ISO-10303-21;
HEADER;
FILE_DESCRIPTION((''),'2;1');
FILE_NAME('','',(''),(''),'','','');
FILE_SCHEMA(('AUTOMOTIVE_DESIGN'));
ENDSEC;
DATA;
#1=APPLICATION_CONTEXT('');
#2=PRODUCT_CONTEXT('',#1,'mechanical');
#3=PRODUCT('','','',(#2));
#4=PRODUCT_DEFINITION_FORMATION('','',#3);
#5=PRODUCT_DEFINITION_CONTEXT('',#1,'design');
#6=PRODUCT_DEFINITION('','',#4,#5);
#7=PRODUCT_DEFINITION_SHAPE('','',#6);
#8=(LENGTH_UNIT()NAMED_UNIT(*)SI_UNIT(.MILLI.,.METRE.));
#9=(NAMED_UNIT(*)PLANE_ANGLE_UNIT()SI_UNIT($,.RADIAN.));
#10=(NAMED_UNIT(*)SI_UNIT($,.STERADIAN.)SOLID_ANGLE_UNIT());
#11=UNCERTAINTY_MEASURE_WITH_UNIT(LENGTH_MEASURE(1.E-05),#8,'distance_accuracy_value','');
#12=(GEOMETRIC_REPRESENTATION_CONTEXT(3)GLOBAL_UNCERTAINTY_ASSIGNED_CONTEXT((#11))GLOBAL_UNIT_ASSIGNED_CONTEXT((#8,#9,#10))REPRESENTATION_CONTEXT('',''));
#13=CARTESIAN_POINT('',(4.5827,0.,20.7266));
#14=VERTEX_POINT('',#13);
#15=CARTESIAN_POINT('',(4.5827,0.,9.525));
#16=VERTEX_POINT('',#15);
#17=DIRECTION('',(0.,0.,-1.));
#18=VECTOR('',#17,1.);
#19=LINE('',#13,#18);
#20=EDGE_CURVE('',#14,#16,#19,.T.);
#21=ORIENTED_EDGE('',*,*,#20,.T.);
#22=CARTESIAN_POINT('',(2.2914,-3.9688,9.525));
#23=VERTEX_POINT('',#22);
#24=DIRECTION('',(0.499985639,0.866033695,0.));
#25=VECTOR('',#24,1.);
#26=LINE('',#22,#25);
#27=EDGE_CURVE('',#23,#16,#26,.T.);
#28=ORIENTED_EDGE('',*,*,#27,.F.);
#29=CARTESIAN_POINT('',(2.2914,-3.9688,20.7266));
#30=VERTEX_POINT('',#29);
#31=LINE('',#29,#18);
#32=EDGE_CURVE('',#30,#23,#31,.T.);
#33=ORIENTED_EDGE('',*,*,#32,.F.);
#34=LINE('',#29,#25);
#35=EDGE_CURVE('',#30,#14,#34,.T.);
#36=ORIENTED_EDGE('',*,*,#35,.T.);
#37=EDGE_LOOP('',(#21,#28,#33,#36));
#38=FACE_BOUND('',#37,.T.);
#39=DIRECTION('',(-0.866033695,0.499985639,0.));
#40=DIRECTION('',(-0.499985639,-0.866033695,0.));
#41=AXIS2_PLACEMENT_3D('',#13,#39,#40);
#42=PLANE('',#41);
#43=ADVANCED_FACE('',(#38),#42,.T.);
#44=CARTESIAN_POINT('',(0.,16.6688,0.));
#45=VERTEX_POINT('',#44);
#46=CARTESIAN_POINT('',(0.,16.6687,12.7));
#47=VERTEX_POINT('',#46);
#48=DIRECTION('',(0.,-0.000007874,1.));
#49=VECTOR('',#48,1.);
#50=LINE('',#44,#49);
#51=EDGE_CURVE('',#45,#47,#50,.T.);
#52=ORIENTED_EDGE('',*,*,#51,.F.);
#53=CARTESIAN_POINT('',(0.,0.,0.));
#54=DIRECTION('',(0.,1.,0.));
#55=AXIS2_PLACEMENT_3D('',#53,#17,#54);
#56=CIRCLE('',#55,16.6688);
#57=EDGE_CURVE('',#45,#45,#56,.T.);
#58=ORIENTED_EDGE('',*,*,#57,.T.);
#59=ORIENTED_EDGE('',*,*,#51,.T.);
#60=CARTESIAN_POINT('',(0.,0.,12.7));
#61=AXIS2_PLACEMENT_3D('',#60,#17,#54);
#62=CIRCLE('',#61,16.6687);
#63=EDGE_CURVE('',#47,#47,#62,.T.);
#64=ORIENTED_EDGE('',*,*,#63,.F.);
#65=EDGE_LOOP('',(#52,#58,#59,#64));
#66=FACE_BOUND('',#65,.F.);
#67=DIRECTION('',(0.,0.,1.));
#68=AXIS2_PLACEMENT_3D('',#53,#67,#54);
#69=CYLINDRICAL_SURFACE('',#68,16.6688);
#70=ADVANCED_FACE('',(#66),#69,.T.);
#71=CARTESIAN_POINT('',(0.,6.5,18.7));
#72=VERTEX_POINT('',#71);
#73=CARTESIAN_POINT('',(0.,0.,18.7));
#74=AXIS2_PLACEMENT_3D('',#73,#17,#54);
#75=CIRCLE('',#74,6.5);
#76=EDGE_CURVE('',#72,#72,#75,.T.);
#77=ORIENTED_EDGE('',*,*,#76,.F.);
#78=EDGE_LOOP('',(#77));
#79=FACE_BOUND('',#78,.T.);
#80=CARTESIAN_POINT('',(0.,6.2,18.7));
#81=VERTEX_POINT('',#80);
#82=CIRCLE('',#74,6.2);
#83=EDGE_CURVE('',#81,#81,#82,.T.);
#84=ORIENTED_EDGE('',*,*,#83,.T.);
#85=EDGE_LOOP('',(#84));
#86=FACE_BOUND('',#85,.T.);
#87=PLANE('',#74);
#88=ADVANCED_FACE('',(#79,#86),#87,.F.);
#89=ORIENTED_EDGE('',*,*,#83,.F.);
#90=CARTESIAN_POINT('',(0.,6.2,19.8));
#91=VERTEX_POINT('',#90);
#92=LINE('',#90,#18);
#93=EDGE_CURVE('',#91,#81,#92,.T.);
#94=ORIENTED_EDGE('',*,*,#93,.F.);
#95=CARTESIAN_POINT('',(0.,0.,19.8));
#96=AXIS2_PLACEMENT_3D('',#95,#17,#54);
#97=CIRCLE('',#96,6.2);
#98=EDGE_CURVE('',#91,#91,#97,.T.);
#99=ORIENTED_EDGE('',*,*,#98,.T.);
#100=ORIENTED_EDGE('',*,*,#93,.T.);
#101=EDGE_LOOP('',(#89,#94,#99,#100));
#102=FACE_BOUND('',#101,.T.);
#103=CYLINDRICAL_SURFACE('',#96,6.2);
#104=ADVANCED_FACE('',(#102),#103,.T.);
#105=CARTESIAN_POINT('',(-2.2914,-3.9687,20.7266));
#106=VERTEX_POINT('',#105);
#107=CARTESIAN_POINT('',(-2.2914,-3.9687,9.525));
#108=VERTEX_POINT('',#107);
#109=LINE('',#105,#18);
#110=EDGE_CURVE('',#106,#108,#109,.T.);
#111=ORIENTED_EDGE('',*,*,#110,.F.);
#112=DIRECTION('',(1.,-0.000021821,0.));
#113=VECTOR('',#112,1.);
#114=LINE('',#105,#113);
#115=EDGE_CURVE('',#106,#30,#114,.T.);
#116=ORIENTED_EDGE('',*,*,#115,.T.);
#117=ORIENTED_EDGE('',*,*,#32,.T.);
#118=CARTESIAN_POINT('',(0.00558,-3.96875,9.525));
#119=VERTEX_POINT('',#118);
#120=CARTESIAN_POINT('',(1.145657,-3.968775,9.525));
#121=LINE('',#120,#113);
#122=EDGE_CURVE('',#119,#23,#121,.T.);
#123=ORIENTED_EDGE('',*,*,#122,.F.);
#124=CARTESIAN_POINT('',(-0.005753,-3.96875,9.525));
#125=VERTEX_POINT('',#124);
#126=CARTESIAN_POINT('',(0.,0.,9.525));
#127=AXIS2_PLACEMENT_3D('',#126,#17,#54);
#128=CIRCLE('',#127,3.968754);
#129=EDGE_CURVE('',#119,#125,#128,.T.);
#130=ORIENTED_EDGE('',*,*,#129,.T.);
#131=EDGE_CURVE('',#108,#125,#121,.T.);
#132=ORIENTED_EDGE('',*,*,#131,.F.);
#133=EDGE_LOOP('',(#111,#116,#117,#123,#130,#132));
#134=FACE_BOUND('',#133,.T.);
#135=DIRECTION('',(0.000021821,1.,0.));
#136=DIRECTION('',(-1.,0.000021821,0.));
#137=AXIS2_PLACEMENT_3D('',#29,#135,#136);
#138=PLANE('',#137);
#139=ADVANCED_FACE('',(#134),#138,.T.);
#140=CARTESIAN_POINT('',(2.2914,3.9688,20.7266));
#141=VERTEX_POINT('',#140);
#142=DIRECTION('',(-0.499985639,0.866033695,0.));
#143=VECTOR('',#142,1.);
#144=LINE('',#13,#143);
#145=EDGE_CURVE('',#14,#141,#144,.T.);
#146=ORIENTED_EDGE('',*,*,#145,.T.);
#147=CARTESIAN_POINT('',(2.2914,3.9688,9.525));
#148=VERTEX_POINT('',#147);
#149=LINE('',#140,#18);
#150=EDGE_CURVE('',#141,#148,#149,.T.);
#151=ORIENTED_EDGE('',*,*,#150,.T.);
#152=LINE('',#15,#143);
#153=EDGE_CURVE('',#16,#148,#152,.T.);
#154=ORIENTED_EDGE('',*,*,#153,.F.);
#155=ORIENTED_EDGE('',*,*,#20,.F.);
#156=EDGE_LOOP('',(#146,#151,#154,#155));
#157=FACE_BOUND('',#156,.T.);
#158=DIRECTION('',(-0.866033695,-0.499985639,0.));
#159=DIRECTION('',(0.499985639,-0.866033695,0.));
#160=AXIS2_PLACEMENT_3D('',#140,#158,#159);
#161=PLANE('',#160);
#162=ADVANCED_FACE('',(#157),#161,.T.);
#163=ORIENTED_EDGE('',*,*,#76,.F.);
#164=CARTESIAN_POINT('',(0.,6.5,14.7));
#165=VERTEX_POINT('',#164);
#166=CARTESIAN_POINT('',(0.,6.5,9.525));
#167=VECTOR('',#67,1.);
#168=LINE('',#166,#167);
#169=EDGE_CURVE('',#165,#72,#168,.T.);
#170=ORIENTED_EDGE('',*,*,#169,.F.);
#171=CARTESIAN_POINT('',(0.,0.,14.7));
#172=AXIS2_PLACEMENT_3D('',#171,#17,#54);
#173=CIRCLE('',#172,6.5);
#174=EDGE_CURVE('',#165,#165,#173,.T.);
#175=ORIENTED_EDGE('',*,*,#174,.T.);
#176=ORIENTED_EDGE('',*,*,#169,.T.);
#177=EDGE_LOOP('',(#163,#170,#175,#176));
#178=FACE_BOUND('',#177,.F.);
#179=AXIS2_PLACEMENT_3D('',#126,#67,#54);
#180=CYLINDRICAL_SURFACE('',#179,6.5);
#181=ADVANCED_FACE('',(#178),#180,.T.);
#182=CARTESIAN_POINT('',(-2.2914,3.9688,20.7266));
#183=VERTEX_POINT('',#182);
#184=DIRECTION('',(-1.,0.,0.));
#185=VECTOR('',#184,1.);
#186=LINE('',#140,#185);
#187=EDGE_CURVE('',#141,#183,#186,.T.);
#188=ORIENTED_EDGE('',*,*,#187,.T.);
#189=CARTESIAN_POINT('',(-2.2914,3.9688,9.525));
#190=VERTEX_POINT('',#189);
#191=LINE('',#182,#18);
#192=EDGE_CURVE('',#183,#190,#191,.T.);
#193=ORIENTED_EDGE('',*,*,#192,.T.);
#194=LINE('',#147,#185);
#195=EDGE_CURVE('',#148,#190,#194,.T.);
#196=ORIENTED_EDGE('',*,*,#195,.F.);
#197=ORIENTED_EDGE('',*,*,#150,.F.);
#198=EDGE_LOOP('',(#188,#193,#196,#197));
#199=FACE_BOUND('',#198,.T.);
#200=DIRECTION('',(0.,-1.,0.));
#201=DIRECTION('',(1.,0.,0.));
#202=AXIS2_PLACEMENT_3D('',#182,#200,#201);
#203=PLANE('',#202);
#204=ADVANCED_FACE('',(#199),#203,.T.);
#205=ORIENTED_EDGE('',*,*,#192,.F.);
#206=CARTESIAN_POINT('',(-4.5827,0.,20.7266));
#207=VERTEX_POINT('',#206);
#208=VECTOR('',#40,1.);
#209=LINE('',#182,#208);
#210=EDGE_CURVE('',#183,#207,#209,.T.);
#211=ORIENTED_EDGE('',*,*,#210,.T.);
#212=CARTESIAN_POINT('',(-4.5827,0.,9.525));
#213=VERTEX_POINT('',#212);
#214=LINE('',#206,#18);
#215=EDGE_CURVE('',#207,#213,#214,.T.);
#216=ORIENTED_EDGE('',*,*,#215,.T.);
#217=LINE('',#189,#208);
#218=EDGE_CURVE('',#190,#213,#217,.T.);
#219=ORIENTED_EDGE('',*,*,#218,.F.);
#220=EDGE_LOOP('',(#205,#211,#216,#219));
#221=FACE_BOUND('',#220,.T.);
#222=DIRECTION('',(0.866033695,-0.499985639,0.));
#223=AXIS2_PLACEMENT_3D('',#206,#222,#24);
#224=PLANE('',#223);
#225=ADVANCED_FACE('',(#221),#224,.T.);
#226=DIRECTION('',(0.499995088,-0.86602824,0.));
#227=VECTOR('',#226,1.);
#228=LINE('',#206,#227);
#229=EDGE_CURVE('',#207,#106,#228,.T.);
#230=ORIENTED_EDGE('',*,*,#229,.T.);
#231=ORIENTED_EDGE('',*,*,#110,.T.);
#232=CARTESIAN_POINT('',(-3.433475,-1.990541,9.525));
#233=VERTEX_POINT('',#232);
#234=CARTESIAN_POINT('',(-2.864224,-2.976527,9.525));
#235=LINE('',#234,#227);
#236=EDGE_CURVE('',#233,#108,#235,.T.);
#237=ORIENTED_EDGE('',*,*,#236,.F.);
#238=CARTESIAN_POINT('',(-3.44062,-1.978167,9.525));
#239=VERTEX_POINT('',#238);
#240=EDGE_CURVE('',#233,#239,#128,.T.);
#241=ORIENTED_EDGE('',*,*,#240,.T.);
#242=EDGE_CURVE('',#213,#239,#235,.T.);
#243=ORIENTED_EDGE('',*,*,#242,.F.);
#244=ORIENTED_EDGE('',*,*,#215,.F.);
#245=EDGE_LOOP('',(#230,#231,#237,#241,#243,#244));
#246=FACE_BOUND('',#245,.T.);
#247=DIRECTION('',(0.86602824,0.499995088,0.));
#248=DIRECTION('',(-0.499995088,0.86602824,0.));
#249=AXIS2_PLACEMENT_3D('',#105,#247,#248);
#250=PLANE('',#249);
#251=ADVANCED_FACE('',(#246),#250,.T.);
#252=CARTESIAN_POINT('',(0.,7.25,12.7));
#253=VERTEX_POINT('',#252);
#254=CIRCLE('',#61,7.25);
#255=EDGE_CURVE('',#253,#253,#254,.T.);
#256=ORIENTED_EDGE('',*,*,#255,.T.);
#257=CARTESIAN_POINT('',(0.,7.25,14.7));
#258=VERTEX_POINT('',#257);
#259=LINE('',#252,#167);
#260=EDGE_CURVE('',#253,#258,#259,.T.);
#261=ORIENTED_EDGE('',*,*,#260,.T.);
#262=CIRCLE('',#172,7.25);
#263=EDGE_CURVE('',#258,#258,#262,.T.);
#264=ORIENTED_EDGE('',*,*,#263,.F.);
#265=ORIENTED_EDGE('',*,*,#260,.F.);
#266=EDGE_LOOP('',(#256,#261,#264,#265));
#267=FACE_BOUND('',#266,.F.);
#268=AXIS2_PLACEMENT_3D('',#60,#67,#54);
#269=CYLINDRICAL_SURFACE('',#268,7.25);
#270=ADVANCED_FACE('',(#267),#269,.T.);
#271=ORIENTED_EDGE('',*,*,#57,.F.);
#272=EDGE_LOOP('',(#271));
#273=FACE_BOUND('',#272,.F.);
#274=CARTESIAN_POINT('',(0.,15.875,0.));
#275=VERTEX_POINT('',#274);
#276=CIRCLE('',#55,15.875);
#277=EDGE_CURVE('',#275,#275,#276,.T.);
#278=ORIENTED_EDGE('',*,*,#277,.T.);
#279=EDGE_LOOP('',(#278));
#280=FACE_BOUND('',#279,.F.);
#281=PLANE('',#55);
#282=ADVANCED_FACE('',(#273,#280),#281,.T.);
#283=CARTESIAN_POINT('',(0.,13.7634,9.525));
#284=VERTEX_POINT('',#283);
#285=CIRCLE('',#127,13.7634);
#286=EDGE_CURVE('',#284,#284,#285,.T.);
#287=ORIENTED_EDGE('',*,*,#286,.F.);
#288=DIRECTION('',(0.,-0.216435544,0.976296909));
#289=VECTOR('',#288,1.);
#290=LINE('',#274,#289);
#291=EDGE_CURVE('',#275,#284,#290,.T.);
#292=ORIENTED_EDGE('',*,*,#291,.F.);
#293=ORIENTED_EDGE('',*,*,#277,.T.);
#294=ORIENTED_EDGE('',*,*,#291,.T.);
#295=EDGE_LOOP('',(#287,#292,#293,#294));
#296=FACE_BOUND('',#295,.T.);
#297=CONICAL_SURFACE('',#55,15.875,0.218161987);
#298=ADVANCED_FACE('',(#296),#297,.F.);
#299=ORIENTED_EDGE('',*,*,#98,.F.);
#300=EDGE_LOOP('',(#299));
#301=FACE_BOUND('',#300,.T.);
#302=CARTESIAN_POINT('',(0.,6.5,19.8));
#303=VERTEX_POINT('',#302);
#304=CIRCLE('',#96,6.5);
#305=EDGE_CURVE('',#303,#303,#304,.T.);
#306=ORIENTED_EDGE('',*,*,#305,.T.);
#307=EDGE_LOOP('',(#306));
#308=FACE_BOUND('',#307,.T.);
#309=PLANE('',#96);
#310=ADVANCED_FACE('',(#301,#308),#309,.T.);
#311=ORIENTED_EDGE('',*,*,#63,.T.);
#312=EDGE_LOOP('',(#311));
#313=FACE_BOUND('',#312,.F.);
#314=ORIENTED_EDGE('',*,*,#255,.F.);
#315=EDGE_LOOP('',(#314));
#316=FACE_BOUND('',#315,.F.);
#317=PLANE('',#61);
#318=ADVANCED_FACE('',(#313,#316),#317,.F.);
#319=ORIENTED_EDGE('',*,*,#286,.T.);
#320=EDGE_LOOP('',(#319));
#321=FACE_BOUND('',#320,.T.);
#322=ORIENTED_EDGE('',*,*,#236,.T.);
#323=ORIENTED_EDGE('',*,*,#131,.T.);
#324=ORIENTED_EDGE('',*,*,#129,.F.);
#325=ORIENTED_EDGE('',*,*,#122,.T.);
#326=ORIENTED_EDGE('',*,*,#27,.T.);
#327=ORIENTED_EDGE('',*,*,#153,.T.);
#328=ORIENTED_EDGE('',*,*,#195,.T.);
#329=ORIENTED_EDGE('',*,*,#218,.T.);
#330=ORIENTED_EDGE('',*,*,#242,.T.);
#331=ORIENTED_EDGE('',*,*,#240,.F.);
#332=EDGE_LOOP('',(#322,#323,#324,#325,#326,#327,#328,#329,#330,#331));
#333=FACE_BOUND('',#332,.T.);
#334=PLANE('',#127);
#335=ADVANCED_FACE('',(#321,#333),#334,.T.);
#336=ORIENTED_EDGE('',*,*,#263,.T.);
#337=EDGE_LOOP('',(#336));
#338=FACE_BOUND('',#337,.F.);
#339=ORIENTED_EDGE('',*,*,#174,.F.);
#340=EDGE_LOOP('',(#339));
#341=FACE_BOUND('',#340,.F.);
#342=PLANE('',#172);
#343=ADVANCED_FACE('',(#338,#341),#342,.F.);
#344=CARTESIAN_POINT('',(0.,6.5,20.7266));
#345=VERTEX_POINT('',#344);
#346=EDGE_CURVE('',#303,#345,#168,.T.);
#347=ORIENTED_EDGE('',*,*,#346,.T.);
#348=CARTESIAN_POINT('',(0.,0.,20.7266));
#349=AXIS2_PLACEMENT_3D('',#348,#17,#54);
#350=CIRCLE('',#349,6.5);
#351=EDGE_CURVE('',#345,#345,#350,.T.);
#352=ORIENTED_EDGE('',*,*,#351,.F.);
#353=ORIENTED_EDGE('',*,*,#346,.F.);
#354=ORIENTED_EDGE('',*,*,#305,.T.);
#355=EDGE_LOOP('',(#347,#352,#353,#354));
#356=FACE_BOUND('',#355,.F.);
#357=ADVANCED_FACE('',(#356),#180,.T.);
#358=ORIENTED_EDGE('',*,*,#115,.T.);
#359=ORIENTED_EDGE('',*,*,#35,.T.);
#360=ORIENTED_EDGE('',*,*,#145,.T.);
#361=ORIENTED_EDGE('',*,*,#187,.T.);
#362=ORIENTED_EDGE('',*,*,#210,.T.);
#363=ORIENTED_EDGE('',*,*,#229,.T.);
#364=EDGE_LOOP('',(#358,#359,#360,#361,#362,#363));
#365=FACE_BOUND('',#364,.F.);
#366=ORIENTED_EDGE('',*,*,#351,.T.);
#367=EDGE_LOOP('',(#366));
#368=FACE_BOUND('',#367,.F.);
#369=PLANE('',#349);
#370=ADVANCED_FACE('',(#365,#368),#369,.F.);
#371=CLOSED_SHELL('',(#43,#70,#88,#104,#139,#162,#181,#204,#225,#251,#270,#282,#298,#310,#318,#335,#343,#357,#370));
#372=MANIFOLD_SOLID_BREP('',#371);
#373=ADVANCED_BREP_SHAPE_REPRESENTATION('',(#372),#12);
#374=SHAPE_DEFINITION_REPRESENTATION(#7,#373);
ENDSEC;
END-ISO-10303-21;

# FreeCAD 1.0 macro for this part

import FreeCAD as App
import Part
import Sketcher

V = App.Vector
Q = App.Units.Quantity


def add_polygon(sketch, points):
    """Adds a closed chain of lines whose ends are joined by coincident constraints."""
    first, n = sketch.GeometryCount, len(points)
    for a, b in zip(points, points[1:] + points[:1]):
        sketch.addGeometry(Part.LineSegment(App.Vector(*a, 0), App.Vector(*b, 0)), False)
    for i in range(n):
        sketch.addConstraint(Sketcher.Constraint("Coincident", first + i, 2, first + (i + 1) % n, 1))

doc = App.newDocument("Part")
params = doc.addObject("Spreadsheet::Sheet", "Params")
for row, (alias, value) in enumerate([
    ("sketch1_height", "0.5 in"),
    ("sketch1_width", "0.031252 in"),
    ("sketch1_height2", "0.441 in"),
    ("revolution_angle", "360 deg"),
], start=1):
    params.set(f"A{row}", alias)
    params.set(f"B{row}", "=" + value)
    params.setAlias(f"B{row}", alias)

body = doc.addObject("PartDesign::Body", "Body")

sketch1 = body.newObject("Sketcher::SketchObject", "Sketch")
sketch1.AttachmentSupport = (doc.getObject("YZ_Plane"), [""])
sketch1.MapMode = "FlatFace"
add_polygon(sketch1, [(13.76, 9.53), (15.88, 0), (16.67, 0), (16.67, 12.7), (7.25, 12.7), (7.25, 14.7), (6.5, 14.7), (6.5, 18.7), (6.2, 18.7), (6.2, 19.8), (6.5, 19.8), (6.5, 20.73), (3.97, 20.73), (3.97, 9.53)])
sketch1.addConstraint([
    Sketcher.Constraint("Horizontal", 1),
    Sketcher.Constraint("Vertical", 2),
    Sketcher.Constraint("Horizontal", 3),
    Sketcher.Constraint("Vertical", 4),
    Sketcher.Constraint("Horizontal", 5),
    Sketcher.Constraint("Vertical", 6),
    Sketcher.Constraint("Horizontal", 7),
    Sketcher.Constraint("Vertical", 8),
    Sketcher.Constraint("Horizontal", 9),
    Sketcher.Constraint("Vertical", 10),
    Sketcher.Constraint("Horizontal", 11),
    Sketcher.Constraint("Vertical", 12),
    Sketcher.Constraint("Horizontal", 13),
    Sketcher.Constraint("PointOnObject", 0, 2, -1),
    Sketcher.Constraint("Vertical", 6, 2, 9, 2),
    Sketcher.Constraint("DistanceY", 2, 1, 2, 2, Q("0.5 in")),
    Sketcher.Constraint("DistanceX", 1, 1, 1, 2, Q("0.031252 in")),
    Sketcher.Constraint("DistanceX", 7, 2, 7, 1, Q("0.0118 in")),
    Sketcher.Constraint("DistanceY", 8, 1, 8, 2, Q("0.0433 in")),
    Sketcher.Constraint("DistanceX", -1, 1, 0, 2, Q("0.625 in")),
    Sketcher.Constraint("DistanceX", -1, 1, 11, 2, Q("0.156248 in")),
    Sketcher.Constraint("DistanceY", -1, 1, 12, 2, Q("0.375 in")),
    Sketcher.Constraint("DistanceX", 5, 2, 5, 1, Q("0.75 mm")),
    Sketcher.Constraint("DistanceY", 4, 1, 4, 2, Q("2 mm")),
    Sketcher.Constraint("DistanceX", -1, 1, 5, 2, Q("0.2559 in")),
    Sketcher.Constraint("Angle", 0, Q("-77.5002 deg")),
    Sketcher.Constraint("DistanceY", 12, 2, 12, 1, Q("0.441 in")),
    Sketcher.Constraint("DistanceY", 3, 2, 6, 2, Q("6 mm")),
])
sketch1.setExpression("Constraints[29]", "Params.sketch1_height")
sketch1.setExpression("Constraints[30]", "Params.sketch1_width")
sketch1.setExpression("Constraints[40]", "Params.sketch1_height2")
revolution = body.newObject("PartDesign::Revolution", "Revolution")
revolution.Profile = sketch1
revolution.ReferenceAxis = (sketch1, ["V_Axis"])
revolution.setExpression("Angle", "Params.revolution_angle")

sketch2 = body.newObject("Sketcher::SketchObject", "Sketch001")
sketch2.AttachmentSupport = (doc.getObject("XY_Plane"), [""])
sketch2.MapMode = "FlatFace"
sketch2.AttachmentOffset = App.Placement(V(0, 0, 0.8160079 * 25.4), App.Rotation())
add_polygon(sketch2, [(4.6, 0), (2.3, 4), (-2.3, 4), (-4.6, 0), (-2.3, -4), (2.3, -4)])
sketch2.addConstraint([
    Sketcher.Constraint("Horizontal", 1),
    Sketcher.Constraint("Horizontal", 4),
    Sketcher.Constraint("Symmetric", 0, 2, 3, 2, -1, 1),
    Sketcher.Constraint("Symmetric", 2, 2, 5, 2, -1, 1),
    Sketcher.Constraint("PointOnObject", 2, 2, -1),
    Sketcher.Constraint("Parallel", 2, 5),
    Sketcher.Constraint("Vertical", 1, 2, 3, 2),
    Sketcher.Constraint("Angle", 0, Q("119.999 deg")),
    Sketcher.Constraint("DistanceY", -1, 1, 0, 2, Q("0.156252 in")),
    Sketcher.Constraint("DistanceX", 1, 2, 1, 1, Q("4.5828 mm")),
])
pocket1 = body.newObject("PartDesign::Pocket", "Pocket")
pocket1.Profile = sketch2
pocket1.Type = "ThroughAll"

doc.recompute()
